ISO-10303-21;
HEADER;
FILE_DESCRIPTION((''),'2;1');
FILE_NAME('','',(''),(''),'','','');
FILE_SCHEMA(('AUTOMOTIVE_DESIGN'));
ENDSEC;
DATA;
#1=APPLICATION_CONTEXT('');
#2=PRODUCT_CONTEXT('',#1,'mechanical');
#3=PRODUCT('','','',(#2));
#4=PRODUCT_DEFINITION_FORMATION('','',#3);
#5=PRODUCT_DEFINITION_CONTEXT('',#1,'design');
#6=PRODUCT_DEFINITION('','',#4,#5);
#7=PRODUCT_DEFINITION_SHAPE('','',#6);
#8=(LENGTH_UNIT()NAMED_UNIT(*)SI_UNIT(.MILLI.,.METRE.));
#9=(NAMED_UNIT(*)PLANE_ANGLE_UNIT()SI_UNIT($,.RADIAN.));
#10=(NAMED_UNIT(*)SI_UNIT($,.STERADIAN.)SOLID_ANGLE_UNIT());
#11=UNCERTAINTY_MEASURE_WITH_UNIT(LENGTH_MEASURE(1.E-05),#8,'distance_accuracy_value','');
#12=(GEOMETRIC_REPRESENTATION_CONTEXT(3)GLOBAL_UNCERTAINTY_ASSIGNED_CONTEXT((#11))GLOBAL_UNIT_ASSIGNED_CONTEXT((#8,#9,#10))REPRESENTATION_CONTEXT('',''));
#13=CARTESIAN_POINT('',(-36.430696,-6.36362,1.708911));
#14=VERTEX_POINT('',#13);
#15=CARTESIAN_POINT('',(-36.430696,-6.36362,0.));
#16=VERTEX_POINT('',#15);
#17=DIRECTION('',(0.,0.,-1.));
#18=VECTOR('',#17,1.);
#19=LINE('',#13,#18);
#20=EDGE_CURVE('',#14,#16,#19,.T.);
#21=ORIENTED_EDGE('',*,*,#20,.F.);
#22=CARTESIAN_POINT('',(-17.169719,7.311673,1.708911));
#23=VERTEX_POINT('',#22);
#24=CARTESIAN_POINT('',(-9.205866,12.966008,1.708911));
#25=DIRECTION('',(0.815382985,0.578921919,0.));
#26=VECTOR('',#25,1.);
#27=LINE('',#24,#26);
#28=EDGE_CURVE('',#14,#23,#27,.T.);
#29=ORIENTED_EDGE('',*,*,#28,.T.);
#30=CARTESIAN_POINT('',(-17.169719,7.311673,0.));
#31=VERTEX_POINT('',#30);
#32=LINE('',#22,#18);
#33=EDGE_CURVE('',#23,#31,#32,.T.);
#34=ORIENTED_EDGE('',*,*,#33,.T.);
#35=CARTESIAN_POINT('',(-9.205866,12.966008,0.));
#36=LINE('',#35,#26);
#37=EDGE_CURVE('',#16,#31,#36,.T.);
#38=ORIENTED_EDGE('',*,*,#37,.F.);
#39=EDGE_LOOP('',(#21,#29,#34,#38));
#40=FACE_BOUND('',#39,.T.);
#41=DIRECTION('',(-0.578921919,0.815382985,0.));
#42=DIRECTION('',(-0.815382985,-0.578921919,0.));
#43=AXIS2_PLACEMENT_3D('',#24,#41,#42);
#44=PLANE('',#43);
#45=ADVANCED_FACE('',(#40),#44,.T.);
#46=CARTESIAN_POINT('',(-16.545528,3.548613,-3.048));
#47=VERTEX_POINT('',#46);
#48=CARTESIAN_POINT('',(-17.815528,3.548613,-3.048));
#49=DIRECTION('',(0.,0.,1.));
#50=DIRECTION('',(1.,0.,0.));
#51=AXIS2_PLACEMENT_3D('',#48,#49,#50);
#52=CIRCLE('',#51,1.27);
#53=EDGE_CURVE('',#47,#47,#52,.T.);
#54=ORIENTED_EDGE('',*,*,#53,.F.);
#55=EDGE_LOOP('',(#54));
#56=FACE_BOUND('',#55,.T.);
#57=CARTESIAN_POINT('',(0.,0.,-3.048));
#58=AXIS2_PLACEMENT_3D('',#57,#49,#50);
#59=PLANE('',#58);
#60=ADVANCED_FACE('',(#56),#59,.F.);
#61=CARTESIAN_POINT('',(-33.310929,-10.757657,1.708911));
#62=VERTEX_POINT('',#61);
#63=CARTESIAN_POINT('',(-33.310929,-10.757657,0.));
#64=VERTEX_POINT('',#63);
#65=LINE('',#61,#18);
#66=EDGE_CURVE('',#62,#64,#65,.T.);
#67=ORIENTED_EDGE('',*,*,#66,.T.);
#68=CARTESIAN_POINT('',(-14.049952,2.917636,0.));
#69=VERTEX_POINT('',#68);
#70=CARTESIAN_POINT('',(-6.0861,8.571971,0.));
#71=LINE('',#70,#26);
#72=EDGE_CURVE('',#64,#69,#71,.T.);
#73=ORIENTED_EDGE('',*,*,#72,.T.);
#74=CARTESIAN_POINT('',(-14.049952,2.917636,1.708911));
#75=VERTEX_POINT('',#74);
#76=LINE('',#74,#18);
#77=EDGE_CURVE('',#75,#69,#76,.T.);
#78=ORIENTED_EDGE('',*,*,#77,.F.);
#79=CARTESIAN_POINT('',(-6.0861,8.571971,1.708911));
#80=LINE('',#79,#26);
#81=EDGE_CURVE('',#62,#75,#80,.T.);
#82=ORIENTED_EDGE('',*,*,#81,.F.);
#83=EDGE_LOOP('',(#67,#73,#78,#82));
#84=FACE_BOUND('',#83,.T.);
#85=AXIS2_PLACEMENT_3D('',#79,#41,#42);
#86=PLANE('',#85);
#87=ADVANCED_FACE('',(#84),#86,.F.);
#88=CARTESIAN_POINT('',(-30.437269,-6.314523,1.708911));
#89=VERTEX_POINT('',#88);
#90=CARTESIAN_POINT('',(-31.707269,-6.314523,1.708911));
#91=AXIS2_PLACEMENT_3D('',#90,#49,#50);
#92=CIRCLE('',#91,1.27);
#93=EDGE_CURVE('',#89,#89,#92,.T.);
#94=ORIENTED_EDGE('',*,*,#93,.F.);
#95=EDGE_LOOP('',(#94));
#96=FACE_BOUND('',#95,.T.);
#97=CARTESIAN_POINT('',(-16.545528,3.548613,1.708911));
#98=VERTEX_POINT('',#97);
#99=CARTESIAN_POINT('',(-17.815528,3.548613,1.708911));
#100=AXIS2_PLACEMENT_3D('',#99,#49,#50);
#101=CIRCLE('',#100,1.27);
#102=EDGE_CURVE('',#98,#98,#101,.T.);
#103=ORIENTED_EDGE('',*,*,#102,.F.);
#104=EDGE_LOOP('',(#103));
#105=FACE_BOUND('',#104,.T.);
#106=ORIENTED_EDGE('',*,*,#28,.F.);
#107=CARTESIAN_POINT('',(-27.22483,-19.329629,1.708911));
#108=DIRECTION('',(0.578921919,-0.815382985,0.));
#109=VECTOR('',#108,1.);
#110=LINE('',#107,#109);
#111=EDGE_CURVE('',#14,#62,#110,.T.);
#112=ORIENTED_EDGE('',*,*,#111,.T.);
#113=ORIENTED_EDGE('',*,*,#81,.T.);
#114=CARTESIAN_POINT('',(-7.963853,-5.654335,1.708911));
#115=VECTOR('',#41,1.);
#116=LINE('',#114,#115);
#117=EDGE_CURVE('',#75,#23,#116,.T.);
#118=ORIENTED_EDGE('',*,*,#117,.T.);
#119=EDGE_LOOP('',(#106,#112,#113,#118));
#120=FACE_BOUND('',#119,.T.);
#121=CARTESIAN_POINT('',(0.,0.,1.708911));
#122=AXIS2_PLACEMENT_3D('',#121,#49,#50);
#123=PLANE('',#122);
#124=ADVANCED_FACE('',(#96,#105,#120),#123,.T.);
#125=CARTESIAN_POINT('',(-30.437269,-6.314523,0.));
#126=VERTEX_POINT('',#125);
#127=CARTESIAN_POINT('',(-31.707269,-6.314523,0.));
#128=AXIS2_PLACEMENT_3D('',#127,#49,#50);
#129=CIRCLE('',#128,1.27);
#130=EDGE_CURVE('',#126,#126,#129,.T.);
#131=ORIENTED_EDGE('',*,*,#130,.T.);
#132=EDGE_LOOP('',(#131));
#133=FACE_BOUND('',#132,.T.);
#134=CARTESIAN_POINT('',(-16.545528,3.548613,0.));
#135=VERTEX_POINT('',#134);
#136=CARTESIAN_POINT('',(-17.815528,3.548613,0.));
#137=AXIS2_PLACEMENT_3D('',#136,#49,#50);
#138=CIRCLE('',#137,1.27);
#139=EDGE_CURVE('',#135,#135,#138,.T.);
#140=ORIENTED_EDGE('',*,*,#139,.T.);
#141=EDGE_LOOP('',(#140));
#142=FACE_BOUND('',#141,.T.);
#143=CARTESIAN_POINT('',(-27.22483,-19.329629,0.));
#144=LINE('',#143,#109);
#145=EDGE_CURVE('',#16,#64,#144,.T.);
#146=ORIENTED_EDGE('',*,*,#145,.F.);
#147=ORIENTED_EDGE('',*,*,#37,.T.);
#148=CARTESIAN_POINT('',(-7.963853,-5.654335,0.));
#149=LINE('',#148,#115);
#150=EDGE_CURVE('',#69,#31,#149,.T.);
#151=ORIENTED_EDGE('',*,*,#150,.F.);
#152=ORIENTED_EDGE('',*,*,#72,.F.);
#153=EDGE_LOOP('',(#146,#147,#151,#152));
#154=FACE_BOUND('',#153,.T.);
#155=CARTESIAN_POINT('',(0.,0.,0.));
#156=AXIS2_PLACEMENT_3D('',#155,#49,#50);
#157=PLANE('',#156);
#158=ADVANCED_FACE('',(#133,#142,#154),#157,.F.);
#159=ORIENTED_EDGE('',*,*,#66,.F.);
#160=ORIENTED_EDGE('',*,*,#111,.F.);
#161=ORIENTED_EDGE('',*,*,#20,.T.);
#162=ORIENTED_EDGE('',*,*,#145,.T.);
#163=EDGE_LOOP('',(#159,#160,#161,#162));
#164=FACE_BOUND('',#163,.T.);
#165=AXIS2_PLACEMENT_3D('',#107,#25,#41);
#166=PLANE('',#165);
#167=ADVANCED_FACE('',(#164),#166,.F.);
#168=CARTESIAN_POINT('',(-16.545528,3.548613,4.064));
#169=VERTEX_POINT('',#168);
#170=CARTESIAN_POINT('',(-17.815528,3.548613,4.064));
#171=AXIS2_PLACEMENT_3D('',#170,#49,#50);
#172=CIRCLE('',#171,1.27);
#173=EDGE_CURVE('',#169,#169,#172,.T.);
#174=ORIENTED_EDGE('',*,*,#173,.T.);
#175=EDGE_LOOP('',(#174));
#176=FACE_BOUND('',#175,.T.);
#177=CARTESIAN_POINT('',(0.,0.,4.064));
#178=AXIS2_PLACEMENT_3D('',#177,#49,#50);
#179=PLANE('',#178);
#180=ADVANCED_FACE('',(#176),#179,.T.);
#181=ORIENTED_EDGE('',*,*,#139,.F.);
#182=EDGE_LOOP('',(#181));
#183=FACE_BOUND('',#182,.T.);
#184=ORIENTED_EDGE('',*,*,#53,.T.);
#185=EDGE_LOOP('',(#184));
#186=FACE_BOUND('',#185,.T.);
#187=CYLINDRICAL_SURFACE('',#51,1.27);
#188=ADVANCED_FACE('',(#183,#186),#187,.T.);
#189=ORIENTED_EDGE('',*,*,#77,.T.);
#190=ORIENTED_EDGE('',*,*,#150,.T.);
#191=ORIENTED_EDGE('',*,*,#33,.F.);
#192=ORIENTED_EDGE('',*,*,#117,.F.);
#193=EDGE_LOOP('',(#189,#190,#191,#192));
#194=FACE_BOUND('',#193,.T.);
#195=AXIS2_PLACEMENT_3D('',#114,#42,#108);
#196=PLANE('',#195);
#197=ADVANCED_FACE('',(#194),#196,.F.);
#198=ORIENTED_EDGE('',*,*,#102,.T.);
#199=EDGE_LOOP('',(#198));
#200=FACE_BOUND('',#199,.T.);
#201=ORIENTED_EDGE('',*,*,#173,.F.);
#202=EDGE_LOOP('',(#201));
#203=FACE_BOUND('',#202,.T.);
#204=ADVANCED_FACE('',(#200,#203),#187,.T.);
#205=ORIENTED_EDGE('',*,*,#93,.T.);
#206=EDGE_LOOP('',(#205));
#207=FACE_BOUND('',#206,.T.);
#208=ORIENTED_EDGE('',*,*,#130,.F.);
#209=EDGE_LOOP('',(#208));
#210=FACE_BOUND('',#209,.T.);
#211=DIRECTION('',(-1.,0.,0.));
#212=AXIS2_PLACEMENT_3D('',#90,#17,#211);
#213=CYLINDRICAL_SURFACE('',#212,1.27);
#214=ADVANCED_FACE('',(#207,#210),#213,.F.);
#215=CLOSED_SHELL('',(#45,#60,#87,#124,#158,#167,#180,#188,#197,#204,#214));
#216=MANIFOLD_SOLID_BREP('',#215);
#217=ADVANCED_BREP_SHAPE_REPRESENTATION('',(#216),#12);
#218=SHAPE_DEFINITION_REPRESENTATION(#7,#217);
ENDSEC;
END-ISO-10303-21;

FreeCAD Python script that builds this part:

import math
import FreeCAD as App
import Part
import Sketcher
from FreeCAD import Vector
Q = App.Units.Quantity


def add_polygon(sketch, points):
    """Adds a closed chain of lines whose ends are joined by coincident constraints."""
    first, n = sketch.GeometryCount, len(points)
    for a, b in zip(points, points[1:] + points[:1]):
        sketch.addGeometry(Part.LineSegment(App.Vector(*a, 0), App.Vector(*b, 0)), False)
    for i in range(n):
        sketch.addConstraint(Sketcher.Constraint("Coincident", first + i, 2, first + (i + 1) % n, 1))

doc = App.newDocument("Part")
body = doc.addObject("PartDesign::Body", "Body")

sketch1 = body.newObject("Sketcher::SketchObject", "Sketch")
sketch1.AttachmentSupport = (doc.getObject("XY_Plane"), [""])
sketch1.MapMode = "FlatFace"
add_polygon(sketch1, [(-19.4, 5.7), (-33.3, -4.1), (-36.4, -6.4), (-34.9, -8.6), (-33.3, -10.8), (-30.1, -8.5), (-16.3, 1.4), (-14, 2.9), (-15.6, 5.1), (-17.2, 7.3)])
sketch1.addGeometry(Part.ArcOfCircle(Part.Circle(Vector(-31.7, -6.3, 0), Vector(0, 0, 1), 1.3), math.radians(125), math.radians(215)), False)
sketch1.addGeometry(Part.ArcOfCircle(Part.Circle(Vector(-31.7, -6.3, 0), Vector(0, 0, 1), 1.3), math.radians(35), math.radians(125)), False)
sketch1.addGeometry(Part.ArcOfCircle(Part.Circle(Vector(-31.7, -6.3, 0), Vector(0, 0, 1), 1.3), math.radians(0), math.radians(35)), False)
sketch1.addGeometry(Part.ArcOfCircle(Part.Circle(Vector(-31.7, -6.3, 0), Vector(0, 0, 1), 1.3), math.radians(-55), math.radians(0)), False)
sketch1.addGeometry(Part.ArcOfCircle(Part.Circle(Vector(-31.7, -6.3, 0), Vector(0, 0, 1), 1.3), math.radians(-145), math.radians(-55)), False)
sketch1.addConstraint([
    Sketcher.Constraint("Tangent", 10, 1, 11, 2),
    Sketcher.Constraint("Tangent", 11, 1, 12, 2),
    Sketcher.Constraint("Tangent", 12, 1, 13, 2),
    Sketcher.Constraint("Tangent", 13, 1, 14, 2),
    Sketcher.Constraint("Tangent", 14, 1, 10, 2),
    Sketcher.Constraint("Coincident", 12, 3, 10, 3),
    Sketcher.Constraint("Parallel", 0, 1),
    Sketcher.Constraint("Perpendicular", 1, 2),
    Sketcher.Constraint("Parallel", 2, 3),
    Sketcher.Constraint("Perpendicular", 3, 4),
    Sketcher.Constraint("Parallel", 4, 5),
    Sketcher.Constraint("Parallel", 5, 6),
    Sketcher.Constraint("Perpendicular", 6, 7),
    Sketcher.Constraint("Parallel", 7, 8),
    Sketcher.Constraint("Perpendicular", 8, 9),
    Sketcher.Constraint("Horizontal", 14, 3, 12, 1),
    Sketcher.Constraint("Equal", 2, 3),
    Sketcher.Constraint("Equal", 1, 4),
    Sketcher.Constraint("Equal", 3, 7),
    Sketcher.Constraint("Radius", 10, Q("0.05 in")),
    Sketcher.Constraint("Distance", 6, Q("0.1065 in")),
    Sketcher.Constraint("DistanceY", 4, 2, -1, 1, Q("0.3351001 in")),
    Sketcher.Constraint("DistanceX", 10, 1, -1, 1, 32.4425),
    Sketcher.Constraint("Distance", 0, 17.016969),
    Sketcher.Constraint("DistanceX", 10, 3, -1, 1, 31.707269),
    Sketcher.Constraint("DistanceY", 1, 2, -1, 1, 6.36362),
    Sketcher.Constraint("DistanceY", 2, 2, -1, 1, 8.560639),
    Sketcher.Constraint("DistanceX", 3, 2, -1, 1, 33.310929),
    Sketcher.Constraint("DistanceX", 8, 2, -1, 1, 17.169719),
    Sketcher.Constraint("DistanceY", -1, 1, 9, 2, 5.733992),
    Sketcher.Constraint("DistanceX", 13, 1, -1, 1, 30.972038),
    Sketcher.Constraint("DistanceY", 13, 1, -1, 1, 7.35006),
    Sketcher.Constraint("DistanceY", 12, 3, 11, 1, 0.735231),
    Sketcher.Constraint("DistanceY", 14, 1, 11, 3, 0.735231),
])
pad1 = body.newObject("PartDesign::Pad", "Pad")
pad1.Profile = sketch1
pad1.Length = 1.708911

sketch2 = body.newObject("Sketcher::SketchObject", "Sketch001")
sketch2.AttachmentSupport = (doc.getObject("XY_Plane"), [""])
sketch2.MapMode = "FlatFace"
sketch2.addGeometry([
    Part.ArcOfCircle(Part.Circle(Vector(-17.8, 3.5, 0), Vector(0, 0, 1), 1.3), math.radians(35), math.radians(126)),
    Part.ArcOfCircle(Part.Circle(Vector(-17.8, 3.5, 0), Vector(0, 0, 1), 1.3), math.radians(126), math.radians(215)),
    Part.ArcOfCircle(Part.Circle(Vector(-17.8, 3.5, 0), Vector(0, 0, 1), 1.3), math.radians(-145), math.radians(-55)),
    Part.ArcOfCircle(Part.Circle(Vector(-17.8, 3.5, 0), Vector(0, 0, 1), 1.3), math.radians(-55), math.radians(0)),
    Part.ArcOfCircle(Part.Circle(Vector(-17.8, 3.5, 0), Vector(0, 0, 1), 1.3), math.radians(0), math.radians(35)),
], False)
sketch2.addConstraint([
    Sketcher.Constraint("Tangent", 0, 2, 1, 1),
    Sketcher.Constraint("Tangent", 1, 2, 2, 1),
    Sketcher.Constraint("Tangent", 2, 2, 3, 1),
    Sketcher.Constraint("Tangent", 3, 2, 4, 1),
    Sketcher.Constraint("Tangent", 4, 2, 0, 1),
    Sketcher.Constraint("Coincident", 2, 3, 0, 3),
    Sketcher.Constraint("Horizontal", 4, 3, 3, 2),
    Sketcher.Constraint("Radius", 0, Q("0.05 in")),
    Sketcher.Constraint("DistanceX", 0, 3, -1, 1, 17.815528),
    Sketcher.Constraint("DistanceX", 0, 2, -1, 1, 18.562769),
    Sketcher.Constraint("DistanceY", -1, 1, 2, 2, 2.510009),
    Sketcher.Constraint("DistanceX", 4, 2, -1, 1, 16.779992),
    Sketcher.Constraint("DistanceY", 1, 2, 2, 3, 0.735231),
    Sketcher.Constraint("DistanceX", 3, 3, 2, 2, 0.730891),
])
pad2 = body.newObject("PartDesign::Pad", "Pad001")
pad2.Profile = sketch2
pad2.Type = "TwoLengths"
pad2.Length = Q("0.16 in")
pad2.Length2 = Q("0.12 in")

doc.recompute()
